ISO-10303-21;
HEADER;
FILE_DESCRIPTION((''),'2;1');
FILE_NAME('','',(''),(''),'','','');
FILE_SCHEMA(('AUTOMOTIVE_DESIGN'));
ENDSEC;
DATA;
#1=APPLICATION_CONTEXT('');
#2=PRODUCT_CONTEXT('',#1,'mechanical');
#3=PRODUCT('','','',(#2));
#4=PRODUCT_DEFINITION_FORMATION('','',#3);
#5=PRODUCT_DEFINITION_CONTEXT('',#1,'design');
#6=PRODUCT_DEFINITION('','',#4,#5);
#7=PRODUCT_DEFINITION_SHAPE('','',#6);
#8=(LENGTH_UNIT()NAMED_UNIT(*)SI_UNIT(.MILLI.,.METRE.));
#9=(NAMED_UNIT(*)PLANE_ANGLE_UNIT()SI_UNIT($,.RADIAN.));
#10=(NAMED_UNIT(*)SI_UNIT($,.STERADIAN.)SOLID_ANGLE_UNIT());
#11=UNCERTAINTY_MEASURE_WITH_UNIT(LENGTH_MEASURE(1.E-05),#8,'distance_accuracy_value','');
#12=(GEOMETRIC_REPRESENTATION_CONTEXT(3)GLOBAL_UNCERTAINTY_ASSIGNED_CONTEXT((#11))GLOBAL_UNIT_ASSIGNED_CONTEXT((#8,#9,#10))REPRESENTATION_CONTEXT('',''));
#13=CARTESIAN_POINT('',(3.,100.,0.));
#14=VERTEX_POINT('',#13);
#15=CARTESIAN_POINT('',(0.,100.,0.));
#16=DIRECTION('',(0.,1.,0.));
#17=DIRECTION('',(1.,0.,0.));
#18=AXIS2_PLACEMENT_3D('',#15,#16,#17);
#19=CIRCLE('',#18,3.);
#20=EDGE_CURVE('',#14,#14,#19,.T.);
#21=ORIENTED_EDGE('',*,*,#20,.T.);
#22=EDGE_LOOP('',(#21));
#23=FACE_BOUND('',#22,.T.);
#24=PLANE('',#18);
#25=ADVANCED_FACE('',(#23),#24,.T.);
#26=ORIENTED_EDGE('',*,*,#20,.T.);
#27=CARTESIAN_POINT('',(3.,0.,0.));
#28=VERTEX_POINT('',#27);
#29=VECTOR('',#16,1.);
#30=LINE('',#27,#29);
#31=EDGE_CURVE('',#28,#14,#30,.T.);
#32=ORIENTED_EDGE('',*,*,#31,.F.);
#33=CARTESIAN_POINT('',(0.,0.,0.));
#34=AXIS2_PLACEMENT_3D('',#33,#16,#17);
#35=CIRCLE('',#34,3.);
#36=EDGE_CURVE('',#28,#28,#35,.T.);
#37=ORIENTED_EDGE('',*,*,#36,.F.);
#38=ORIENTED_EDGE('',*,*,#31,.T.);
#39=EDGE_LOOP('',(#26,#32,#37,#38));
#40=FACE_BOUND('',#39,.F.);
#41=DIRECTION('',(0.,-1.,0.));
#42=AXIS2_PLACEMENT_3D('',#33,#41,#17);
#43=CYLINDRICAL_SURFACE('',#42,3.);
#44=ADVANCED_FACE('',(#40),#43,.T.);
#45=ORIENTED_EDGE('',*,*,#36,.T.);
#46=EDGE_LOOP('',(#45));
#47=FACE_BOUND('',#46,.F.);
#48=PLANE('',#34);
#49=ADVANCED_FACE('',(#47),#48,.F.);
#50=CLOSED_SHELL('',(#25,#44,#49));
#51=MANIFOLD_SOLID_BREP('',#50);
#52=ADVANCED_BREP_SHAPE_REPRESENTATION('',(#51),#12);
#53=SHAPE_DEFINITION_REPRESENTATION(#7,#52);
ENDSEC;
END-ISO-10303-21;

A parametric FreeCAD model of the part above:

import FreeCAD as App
import Part
import Sketcher
from FreeCAD import Vector
Q = App.Units.Quantity

doc = App.newDocument("Part")
body = doc.addObject("PartDesign::Body", "Body")

sketch1 = body.newObject("Sketcher::SketchObject", "Sketch")
sketch1.AttachmentSupport = (doc.getObject("XZ_Plane"), [""])
sketch1.MapMode = "FlatFace"
sketch1.addGeometry(Part.Circle(Vector(0, 0, 0), Vector(0, 0, 1), 3), False)
sketch1.addConstraint([
    Sketcher.Constraint("Coincident", 0, 3, -1, 1),
    Sketcher.Constraint("Diameter", 0, Q("6 mm")),
])
pad1 = body.newObject("PartDesign::Pad", "Pad")
pad1.Profile = sketch1
pad1.Length = 100
pad1.Reversed = True

doc.recompute()
